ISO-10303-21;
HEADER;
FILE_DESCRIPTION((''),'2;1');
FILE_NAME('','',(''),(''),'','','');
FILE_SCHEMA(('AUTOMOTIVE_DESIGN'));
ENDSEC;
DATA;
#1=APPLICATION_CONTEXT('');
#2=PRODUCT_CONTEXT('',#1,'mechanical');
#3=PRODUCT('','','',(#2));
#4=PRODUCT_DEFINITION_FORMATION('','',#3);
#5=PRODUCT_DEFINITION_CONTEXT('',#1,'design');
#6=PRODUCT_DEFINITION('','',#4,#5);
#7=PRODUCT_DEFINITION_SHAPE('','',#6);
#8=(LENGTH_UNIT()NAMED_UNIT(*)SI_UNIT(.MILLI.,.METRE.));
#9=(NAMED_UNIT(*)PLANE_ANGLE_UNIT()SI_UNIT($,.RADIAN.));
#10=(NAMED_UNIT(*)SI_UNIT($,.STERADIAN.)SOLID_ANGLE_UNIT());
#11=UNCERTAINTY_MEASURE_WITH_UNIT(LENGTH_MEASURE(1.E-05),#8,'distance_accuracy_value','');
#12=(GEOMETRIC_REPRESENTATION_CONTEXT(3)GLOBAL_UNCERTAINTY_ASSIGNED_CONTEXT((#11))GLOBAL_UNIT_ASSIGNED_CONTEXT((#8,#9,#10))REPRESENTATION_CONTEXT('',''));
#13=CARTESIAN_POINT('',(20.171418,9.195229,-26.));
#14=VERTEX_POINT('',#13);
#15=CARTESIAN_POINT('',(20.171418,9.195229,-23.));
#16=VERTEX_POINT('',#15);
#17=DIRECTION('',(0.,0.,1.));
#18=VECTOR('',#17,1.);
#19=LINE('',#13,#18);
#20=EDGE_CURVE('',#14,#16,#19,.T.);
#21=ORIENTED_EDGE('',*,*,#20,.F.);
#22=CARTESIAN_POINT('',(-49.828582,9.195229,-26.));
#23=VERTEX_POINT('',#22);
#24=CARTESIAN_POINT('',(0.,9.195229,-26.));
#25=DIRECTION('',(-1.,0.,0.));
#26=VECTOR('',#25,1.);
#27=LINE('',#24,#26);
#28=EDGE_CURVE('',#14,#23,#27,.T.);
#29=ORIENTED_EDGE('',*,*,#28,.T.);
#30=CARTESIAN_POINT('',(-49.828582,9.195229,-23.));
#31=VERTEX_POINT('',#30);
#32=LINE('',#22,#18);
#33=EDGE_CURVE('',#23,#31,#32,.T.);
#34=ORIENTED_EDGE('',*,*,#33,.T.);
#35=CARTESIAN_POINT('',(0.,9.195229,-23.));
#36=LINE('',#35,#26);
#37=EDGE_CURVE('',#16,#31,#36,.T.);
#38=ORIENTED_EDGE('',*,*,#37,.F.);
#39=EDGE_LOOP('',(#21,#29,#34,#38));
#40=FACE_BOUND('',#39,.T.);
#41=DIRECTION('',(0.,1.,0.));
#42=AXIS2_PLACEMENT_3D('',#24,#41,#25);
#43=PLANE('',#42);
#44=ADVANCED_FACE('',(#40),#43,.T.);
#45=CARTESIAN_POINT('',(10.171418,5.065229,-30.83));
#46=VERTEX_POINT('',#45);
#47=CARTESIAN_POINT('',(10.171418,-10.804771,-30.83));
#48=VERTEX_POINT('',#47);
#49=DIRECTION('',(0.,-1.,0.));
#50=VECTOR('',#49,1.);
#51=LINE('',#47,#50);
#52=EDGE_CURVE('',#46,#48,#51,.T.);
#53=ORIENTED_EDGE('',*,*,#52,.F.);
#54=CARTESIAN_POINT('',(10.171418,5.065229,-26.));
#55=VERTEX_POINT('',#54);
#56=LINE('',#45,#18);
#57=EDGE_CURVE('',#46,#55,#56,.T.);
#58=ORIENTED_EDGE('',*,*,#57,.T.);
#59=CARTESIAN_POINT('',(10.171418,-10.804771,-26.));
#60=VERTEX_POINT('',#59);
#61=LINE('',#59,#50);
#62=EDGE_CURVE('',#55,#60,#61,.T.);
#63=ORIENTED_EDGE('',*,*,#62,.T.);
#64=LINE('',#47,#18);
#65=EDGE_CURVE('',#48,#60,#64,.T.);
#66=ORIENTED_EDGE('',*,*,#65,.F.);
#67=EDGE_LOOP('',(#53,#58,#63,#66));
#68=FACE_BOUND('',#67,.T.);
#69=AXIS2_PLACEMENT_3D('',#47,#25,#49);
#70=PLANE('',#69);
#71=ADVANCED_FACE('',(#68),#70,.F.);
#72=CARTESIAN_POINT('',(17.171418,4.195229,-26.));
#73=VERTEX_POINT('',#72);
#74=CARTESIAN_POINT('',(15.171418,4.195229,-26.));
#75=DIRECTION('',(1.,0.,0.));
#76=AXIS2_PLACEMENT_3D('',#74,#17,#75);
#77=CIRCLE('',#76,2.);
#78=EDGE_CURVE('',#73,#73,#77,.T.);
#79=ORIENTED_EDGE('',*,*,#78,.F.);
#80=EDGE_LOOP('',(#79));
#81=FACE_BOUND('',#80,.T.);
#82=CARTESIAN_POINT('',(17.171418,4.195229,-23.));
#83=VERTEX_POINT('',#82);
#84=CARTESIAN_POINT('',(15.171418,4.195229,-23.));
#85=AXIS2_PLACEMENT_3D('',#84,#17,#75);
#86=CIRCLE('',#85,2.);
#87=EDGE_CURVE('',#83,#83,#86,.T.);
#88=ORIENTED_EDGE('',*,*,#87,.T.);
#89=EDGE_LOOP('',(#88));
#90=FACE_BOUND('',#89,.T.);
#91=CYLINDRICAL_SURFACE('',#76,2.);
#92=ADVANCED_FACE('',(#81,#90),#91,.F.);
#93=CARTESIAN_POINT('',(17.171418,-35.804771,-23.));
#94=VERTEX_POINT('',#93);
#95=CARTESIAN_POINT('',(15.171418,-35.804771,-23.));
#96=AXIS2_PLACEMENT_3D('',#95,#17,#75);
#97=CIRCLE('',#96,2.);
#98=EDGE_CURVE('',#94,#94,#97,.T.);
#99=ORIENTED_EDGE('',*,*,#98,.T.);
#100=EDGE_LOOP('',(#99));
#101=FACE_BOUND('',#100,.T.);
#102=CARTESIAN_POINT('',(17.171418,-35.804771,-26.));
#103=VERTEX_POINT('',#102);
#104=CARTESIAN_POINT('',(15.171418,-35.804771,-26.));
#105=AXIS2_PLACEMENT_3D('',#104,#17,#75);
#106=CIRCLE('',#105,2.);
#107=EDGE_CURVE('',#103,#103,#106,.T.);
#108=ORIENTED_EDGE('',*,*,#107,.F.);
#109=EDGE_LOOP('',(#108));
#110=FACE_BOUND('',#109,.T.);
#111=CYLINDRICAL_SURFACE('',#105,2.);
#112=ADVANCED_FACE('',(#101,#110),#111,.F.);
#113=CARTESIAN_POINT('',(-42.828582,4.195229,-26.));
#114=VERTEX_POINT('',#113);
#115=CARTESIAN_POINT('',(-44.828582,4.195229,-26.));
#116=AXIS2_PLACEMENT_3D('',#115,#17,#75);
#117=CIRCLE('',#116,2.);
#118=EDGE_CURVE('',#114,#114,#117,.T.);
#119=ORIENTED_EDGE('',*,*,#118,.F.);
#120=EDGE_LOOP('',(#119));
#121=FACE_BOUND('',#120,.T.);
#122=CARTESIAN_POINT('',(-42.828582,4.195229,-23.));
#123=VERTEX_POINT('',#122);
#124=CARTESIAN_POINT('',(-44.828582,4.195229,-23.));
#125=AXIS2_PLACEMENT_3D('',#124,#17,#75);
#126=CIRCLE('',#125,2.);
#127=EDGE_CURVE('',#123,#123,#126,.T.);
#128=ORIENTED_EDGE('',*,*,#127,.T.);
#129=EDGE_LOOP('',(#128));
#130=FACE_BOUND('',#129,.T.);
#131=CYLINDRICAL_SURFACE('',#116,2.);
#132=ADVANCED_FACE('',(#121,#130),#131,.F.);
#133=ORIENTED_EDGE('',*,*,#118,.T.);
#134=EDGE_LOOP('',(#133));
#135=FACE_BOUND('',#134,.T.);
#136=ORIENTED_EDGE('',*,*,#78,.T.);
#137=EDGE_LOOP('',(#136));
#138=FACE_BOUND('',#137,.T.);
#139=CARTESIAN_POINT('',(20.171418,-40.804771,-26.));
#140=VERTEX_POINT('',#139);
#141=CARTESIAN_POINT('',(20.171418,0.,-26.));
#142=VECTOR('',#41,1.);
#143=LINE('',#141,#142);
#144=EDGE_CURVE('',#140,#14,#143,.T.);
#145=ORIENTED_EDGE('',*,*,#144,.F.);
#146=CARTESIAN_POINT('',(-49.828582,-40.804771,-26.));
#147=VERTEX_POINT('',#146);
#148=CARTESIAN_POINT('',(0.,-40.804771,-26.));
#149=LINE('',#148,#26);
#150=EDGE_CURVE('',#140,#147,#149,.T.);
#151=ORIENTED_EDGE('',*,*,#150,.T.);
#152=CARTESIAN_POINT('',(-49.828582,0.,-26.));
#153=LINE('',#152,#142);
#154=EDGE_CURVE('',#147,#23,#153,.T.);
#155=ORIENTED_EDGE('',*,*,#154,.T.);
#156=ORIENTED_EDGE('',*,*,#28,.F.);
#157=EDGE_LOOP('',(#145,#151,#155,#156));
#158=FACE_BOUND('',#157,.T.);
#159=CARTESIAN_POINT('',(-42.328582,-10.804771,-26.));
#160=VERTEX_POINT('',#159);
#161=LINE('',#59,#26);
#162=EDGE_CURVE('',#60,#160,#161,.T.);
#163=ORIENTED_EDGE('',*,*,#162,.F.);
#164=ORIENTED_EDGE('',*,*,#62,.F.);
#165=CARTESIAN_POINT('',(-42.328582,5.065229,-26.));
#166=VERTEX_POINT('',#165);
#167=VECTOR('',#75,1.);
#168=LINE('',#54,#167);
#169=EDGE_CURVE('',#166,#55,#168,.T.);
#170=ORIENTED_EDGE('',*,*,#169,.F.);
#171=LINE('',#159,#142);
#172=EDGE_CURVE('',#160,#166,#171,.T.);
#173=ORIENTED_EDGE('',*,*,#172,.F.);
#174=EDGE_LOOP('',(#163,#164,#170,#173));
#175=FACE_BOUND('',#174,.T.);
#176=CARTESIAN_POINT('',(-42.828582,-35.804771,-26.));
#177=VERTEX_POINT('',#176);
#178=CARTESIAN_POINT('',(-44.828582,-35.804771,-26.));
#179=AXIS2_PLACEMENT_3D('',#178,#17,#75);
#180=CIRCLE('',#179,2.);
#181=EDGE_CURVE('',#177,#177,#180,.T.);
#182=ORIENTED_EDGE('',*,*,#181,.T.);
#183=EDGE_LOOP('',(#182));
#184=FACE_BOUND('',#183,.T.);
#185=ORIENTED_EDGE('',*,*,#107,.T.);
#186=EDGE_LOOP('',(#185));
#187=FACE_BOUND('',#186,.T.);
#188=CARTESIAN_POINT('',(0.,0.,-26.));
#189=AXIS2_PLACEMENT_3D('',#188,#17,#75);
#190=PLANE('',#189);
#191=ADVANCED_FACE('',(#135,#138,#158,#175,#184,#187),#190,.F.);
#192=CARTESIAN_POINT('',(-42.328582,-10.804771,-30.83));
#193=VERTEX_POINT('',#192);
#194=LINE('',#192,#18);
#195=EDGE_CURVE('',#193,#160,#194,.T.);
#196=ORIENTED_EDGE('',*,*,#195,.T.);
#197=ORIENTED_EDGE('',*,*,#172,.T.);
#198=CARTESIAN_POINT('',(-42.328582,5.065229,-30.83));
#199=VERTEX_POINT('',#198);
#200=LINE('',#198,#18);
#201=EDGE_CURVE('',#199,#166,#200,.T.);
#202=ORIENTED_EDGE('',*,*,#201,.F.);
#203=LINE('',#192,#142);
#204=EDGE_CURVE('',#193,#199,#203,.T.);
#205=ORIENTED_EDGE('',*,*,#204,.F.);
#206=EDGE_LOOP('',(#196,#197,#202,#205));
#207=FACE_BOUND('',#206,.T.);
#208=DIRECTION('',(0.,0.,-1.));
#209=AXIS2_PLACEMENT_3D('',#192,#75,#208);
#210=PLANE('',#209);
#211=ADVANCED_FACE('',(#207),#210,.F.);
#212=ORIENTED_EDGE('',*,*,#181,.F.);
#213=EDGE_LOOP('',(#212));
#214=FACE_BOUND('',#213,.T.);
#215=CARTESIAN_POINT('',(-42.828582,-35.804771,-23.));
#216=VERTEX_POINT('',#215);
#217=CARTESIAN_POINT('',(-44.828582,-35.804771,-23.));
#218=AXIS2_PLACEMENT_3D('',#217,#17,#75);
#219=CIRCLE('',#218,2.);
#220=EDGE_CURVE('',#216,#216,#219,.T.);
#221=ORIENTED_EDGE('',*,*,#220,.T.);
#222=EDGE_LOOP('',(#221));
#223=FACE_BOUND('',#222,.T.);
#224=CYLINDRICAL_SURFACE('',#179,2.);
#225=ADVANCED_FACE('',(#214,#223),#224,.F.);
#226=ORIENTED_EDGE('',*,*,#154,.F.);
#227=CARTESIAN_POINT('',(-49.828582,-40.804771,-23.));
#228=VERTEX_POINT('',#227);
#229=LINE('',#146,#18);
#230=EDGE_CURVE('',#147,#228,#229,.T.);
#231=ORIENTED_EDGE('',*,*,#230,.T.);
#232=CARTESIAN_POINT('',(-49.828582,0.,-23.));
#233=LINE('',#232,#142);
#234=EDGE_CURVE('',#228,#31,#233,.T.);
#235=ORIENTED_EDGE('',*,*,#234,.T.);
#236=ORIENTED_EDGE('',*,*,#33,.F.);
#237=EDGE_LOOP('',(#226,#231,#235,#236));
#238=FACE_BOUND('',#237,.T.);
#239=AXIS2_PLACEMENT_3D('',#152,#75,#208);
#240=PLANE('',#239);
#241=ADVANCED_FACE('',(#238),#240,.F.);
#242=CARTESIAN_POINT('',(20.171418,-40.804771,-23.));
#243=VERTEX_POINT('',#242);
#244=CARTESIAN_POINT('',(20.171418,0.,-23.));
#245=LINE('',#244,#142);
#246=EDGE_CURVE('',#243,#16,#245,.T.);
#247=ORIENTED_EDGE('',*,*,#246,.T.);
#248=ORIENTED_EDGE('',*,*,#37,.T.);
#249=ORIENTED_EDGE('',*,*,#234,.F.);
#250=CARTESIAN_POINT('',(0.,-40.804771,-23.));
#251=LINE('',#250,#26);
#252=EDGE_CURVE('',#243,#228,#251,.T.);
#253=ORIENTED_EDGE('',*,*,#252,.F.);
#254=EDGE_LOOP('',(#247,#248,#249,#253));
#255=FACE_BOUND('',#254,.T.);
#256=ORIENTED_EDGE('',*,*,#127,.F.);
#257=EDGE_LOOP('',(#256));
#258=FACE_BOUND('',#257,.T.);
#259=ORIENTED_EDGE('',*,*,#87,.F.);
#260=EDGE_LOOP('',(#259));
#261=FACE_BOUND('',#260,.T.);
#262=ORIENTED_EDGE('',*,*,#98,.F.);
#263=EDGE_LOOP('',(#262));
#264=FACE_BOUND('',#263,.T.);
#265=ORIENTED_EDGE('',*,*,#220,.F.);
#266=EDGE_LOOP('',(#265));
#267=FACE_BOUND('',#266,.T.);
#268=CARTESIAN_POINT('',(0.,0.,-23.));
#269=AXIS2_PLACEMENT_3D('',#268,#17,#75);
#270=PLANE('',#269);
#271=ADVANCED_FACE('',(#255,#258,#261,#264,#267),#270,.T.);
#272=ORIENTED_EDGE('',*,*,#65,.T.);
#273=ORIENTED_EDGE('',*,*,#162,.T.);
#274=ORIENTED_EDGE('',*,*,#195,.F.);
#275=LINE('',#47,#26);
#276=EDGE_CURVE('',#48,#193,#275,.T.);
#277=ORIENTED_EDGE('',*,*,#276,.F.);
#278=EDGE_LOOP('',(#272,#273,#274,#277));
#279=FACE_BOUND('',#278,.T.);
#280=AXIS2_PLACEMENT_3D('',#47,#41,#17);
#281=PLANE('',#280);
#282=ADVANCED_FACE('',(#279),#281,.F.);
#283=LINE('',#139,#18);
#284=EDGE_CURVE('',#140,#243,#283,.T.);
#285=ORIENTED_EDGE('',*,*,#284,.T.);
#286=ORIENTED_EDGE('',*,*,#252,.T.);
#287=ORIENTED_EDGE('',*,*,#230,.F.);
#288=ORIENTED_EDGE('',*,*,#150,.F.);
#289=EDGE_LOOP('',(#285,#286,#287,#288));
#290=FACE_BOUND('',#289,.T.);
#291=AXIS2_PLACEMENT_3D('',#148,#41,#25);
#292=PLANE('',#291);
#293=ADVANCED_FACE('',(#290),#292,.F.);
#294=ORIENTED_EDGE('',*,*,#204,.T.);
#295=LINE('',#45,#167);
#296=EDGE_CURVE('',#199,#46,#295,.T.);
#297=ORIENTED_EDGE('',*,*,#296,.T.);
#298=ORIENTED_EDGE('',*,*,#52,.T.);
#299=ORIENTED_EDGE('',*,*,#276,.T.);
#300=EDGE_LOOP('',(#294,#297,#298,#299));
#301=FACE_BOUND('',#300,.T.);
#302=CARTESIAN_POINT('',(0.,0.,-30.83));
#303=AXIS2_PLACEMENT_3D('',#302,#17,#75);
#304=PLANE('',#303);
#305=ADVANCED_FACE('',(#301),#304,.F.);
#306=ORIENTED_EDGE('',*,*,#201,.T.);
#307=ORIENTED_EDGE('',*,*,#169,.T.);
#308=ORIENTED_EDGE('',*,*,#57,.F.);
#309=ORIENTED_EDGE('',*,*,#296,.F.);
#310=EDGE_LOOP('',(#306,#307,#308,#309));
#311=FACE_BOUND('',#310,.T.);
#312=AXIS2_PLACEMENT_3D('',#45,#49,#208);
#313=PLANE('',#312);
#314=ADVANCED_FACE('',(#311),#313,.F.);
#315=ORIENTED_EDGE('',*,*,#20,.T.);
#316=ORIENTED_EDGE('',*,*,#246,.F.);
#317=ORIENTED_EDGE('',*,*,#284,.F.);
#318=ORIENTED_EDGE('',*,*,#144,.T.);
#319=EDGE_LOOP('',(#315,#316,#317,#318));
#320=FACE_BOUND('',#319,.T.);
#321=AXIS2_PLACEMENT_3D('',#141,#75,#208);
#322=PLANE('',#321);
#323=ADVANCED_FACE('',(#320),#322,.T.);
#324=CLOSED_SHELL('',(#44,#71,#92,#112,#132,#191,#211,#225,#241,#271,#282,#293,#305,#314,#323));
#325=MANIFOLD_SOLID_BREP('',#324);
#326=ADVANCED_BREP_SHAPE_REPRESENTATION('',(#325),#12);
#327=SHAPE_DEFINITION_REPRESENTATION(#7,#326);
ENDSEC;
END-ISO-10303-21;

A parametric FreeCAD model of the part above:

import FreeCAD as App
import Part
import Sketcher
from FreeCAD import Vector


def add_polygon(sketch, points):
    """Adds a closed chain of lines whose ends are joined by coincident constraints."""
    first, n = sketch.GeometryCount, len(points)
    for a, b in zip(points, points[1:] + points[:1]):
        sketch.addGeometry(Part.LineSegment(App.Vector(*a, 0), App.Vector(*b, 0)), False)
    for i in range(n):
        sketch.addConstraint(Sketcher.Constraint("Coincident", first + i, 2, first + (i + 1) % n, 1))

doc = App.newDocument("Part")
body = doc.addObject("PartDesign::Body", "Body")

# Sketch on XY plane
sketch1 = body.newObject("Sketcher::SketchObject", "Sketch")
sketch1.AttachmentSupport = (doc.getObject("XY_Plane"), [""])
sketch1.MapMode = "FlatFace"
sketch1.AttachmentOffset = App.Placement(Vector(0, 0, -23), App.Rotation())
add_polygon(sketch1, [(-49.8, 9.2), (-49.8, -40.8), (20.2, -40.8), (20.2, 9.2)])  # lines 0-3
sketch1.addGeometry(Part.Circle(Vector(-44.8, -35.8, 0), Vector(0, 0, 1), 2), False)  # 4
sketch1.addGeometry(Part.Circle(Vector(15.2, -35.8, 0), Vector(0, 0, 1), 2), False)  # 5
sketch1.addGeometry(Part.Circle(Vector(-44.8, 4.2, 0), Vector(0, 0, 1), 2), False)  # 6
sketch1.addGeometry(Part.Circle(Vector(15.2, 4.2, 0), Vector(0, 0, 1), 2), False)  # 7
sketch1.addConstraint(Sketcher.Constraint("Vertical", 0))
sketch1.addConstraint(Sketcher.Constraint("Horizontal", 1))
sketch1.addConstraint(Sketcher.Constraint("Vertical", 2))
sketch1.addConstraint(Sketcher.Constraint("Horizontal", 3))
sketch1.addConstraint(Sketcher.Constraint("Equal", 4, 5))
sketch1.addConstraint(Sketcher.Constraint("Equal", 5, 6))
sketch1.addConstraint(Sketcher.Constraint("Equal", 6, 7))
sketch1.addConstraint(Sketcher.Constraint("Horizontal", 4, 3, 5, 3))
sketch1.addConstraint(Sketcher.Constraint("Horizontal", 6, 3, 7, 3))
sketch1.addConstraint(Sketcher.Constraint("Vertical", 4, 3, 6, 3))
sketch1.addConstraint(Sketcher.Constraint("Vertical", 5, 3, 7, 3))
sketch1.addConstraint(Sketcher.Constraint("Diameter", 4, 4.0))
sketch1.addConstraint(Sketcher.Constraint("DistanceX", 1, 1, 1, 2, 70.0))
sketch1.addConstraint(Sketcher.Constraint("DistanceY", 0, 2, 0, 1, 50.0))
sketch1.addConstraint(Sketcher.Constraint("DistanceX", 4, 3, 5, 3, 60.0))
sketch1.addConstraint(Sketcher.Constraint("DistanceY", 4, 3, 6, 3, 40.0))
sketch1.addConstraint(Sketcher.Constraint("DistanceX", 0, 2, 4, 3, 5.0))
sketch1.addConstraint(Sketcher.Constraint("DistanceY", 0, 2, 4, 3, 5.0))
sketch1.addConstraint(Sketcher.Constraint("DistanceY", 4, 3, -1, 1, 35.804771))
sketch1.addConstraint(Sketcher.Constraint("DistanceX", 4, 3, -1, 1, 44.828582))
pad1 = body.newObject("PartDesign::Pad", "Pad")
pad1.Profile = sketch1
pad1.Length = 3
pad1.Reversed = True

# Sketch on XY plane
sketch2 = body.newObject("Sketcher::SketchObject", "Sketch001")
sketch2.AttachmentSupport = (doc.getObject("XY_Plane"), [""])
sketch2.MapMode = "FlatFace"
sketch2.AttachmentOffset = App.Placement(Vector(0, 0, -26), App.Rotation())
add_polygon(sketch2, [(10, 5), (10, -11), (-42, -11), (-42, 5)])  # lines 0-3
sketch2.addConstraint(Sketcher.Constraint("Vertical", 0))
sketch2.addConstraint(Sketcher.Constraint("Horizontal", 1))
sketch2.addConstraint(Sketcher.Constraint("Vertical", 2))
sketch2.addConstraint(Sketcher.Constraint("Horizontal", 3))
sketch2.addConstraint(Sketcher.Constraint("DistanceX", 1, 2, 1, 1, 52.5))
sketch2.addConstraint(Sketcher.Constraint("DistanceY", 0, 2, 0, 1, 15.87))
sketch2.addConstraint(Sketcher.Constraint("DistanceY", 0, 2, -1, 1, 10.804771))
sketch2.addConstraint(Sketcher.Constraint("DistanceX", -1, 1, 0, 2, 10.171418))
pad2 = body.newObject("PartDesign::Pad", "Pad001")
pad2.Profile = sketch2
pad2.Length = 4.83
pad2.Reversed = True

doc.recompute()
